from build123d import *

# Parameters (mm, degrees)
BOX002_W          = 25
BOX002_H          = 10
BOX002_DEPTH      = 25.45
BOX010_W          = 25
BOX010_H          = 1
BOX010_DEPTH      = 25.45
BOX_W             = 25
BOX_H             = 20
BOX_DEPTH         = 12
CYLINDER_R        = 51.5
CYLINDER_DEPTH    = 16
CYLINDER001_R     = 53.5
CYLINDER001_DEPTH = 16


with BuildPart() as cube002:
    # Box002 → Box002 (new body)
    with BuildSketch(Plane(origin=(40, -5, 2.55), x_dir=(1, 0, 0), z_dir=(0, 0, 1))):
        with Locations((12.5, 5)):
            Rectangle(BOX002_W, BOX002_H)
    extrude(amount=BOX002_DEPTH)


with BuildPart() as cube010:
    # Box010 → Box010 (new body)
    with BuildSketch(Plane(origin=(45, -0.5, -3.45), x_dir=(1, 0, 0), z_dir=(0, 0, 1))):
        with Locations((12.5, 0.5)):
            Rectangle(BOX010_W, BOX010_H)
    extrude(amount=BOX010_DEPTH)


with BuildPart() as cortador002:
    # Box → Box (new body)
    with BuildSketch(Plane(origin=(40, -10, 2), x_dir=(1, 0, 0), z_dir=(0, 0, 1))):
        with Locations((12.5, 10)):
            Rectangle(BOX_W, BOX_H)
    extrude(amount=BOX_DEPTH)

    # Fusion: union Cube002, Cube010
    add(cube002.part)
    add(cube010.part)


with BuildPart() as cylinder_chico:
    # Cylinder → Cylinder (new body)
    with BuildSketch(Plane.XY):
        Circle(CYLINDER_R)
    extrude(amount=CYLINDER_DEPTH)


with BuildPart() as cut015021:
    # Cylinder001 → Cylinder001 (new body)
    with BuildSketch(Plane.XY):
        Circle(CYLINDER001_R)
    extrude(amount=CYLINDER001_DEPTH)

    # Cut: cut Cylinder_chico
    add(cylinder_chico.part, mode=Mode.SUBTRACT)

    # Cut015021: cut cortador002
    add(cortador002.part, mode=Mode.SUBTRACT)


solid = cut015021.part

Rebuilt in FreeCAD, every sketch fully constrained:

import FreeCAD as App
import Part
import Sketcher
from FreeCAD import Vector


def add_polygon(sketch, points):
    """Adds a closed chain of lines whose ends are joined by coincident constraints."""
    first, n = sketch.GeometryCount, len(points)
    for a, b in zip(points, points[1:] + points[:1]):
        sketch.addGeometry(Part.LineSegment(App.Vector(*a, 0), App.Vector(*b, 0)), False)
    for i in range(n):
        sketch.addConstraint(Sketcher.Constraint("Coincident", first + i, 2, first + (i + 1) % n, 1))

doc = App.newDocument("Part")
body = doc.addObject("PartDesign::Body", "Body")

# Sketch on XY plane
sketch1 = body.newObject("Sketcher::SketchObject", "Sketch")
sketch1.AttachmentSupport = (doc.getObject("XY_Plane"), [""])
sketch1.MapMode = "FlatFace"
sketch1.AttachmentOffset = App.Placement(Vector(0, 0, 2.55), App.Rotation())
add_polygon(sketch1, [(40, 5), (40, -5), (65, -5), (65, 5)])  # lines 0-3
sketch1.addConstraint([
    Sketcher.Constraint("Vertical", 0),
    Sketcher.Constraint("Horizontal", 1),
    Sketcher.Constraint("Vertical", 2),
    Sketcher.Constraint("Horizontal", 3),
    Sketcher.Constraint("DistanceX", 1, 1, 1, 2, 25.0),
    Sketcher.Constraint("DistanceY", 0, 2, 0, 1, 10.0),
    Sketcher.Constraint("DistanceX", -1, 1, 0, 2, 40.0),
    Sketcher.Constraint("DistanceY", 0, 2, -1, 1, 5.0),
])
pad1 = body.newObject("PartDesign::Pad", "Pad")
pad1.Profile = sketch1
pad1.Length = 25.45
body2 = doc.addObject("PartDesign::Body", "Body001")

# Sketch on XY plane
sketch2 = body2.newObject("Sketcher::SketchObject", "Sketch001")
sketch2.AttachmentSupport = (doc.getObject("XY_Plane001"), [""])
sketch2.MapMode = "FlatFace"
sketch2.AttachmentOffset = App.Placement(Vector(0, 0, -3.45), App.Rotation())
add_polygon(sketch2, [(45, 0.5), (45, -0.5), (70, -0.5), (70, 0.5)])  # lines 0-3
sketch2.addConstraint([
    Sketcher.Constraint("Vertical", 0),
    Sketcher.Constraint("Horizontal", 1),
    Sketcher.Constraint("Vertical", 2),
    Sketcher.Constraint("Horizontal", 3),
    Sketcher.Constraint("DistanceX", 1, 1, 1, 2, 25.0),
    Sketcher.Constraint("DistanceY", 0, 2, 0, 1, 1.0),
    Sketcher.Constraint("DistanceX", -1, 1, 0, 2, 45.0),
    Sketcher.Constraint("DistanceY", 0, 2, -1, 1, 0.5),
])
pad2 = body2.newObject("PartDesign::Pad", "Pad001")
pad2.Profile = sketch2
pad2.Length = 25.45
body3 = doc.addObject("PartDesign::Body", "Body002")

# Sketch on XY plane
sketch3 = body3.newObject("Sketcher::SketchObject", "Sketch002")
sketch3.AttachmentSupport = (doc.getObject("XY_Plane002"), [""])
sketch3.MapMode = "FlatFace"
sketch3.AttachmentOffset = App.Placement(Vector(0, 0, 2), App.Rotation())
add_polygon(sketch3, [(40, 10), (40, -10), (65, -10), (65, 10)])  # lines 0-3
sketch3.addConstraint([
    Sketcher.Constraint("Vertical", 0),
    Sketcher.Constraint("Horizontal", 1),
    Sketcher.Constraint("Vertical", 2),
    Sketcher.Constraint("Horizontal", 3),
    Sketcher.Constraint("DistanceX", 1, 1, 1, 2, 25.0),
    Sketcher.Constraint("DistanceY", 0, 2, 0, 1, 20.0),
    Sketcher.Constraint("DistanceX", -1, 1, 0, 2, 40.0),
    Sketcher.Constraint("DistanceY", 0, 2, -1, 1, 10.0),
])
pad3 = body3.newObject("PartDesign::Pad", "Pad002")
pad3.Profile = sketch3
pad3.Length = 12
doc.recompute()

boolean = body3.newObject("PartDesign::Boolean", "Boolean")
boolean.Type = "Fuse"
boolean.addObjects([body])
doc.recompute()

boolean2 = body3.newObject("PartDesign::Boolean", "Boolean001")
boolean2.Type = "Fuse"
boolean2.addObjects([body2])
body4 = doc.addObject("PartDesign::Body", "Body003")

# Sketch on XY plane
sketch4 = body4.newObject("Sketcher::SketchObject", "Sketch003")
sketch4.AttachmentSupport = (doc.getObject("XY_Plane003"), [""])
sketch4.MapMode = "FlatFace"
sketch4.addGeometry(Part.Circle(Vector(0, 0, 0), Vector(0, 0, 1), 52), False)
sketch4.addConstraint([
    Sketcher.Constraint("Coincident", 0, 3, -1, 1),
    Sketcher.Constraint("Diameter", 0, 103.0),
])
pad4 = body4.newObject("PartDesign::Pad", "Pad003")
pad4.Profile = sketch4
pad4.Length = 16
body5 = doc.addObject("PartDesign::Body", "Body004")

# Sketch on XY plane
sketch5 = body5.newObject("Sketcher::SketchObject", "Sketch004")
sketch5.AttachmentSupport = (doc.getObject("XY_Plane004"), [""])
sketch5.MapMode = "FlatFace"
sketch5.addGeometry(Part.Circle(Vector(0, 0, 0), Vector(0, 0, 1), 54), False)
sketch5.addConstraint([
    Sketcher.Constraint("Coincident", 0, 3, -1, 1),
    Sketcher.Constraint("Diameter", 0, 107.0),
])
pad5 = body5.newObject("PartDesign::Pad", "Pad004")
pad5.Profile = sketch5
pad5.Length = 16
doc.recompute()

boolean3 = body5.newObject("PartDesign::Boolean", "Boolean002")
boolean3.Type = "Cut"
boolean3.addObjects([body4])
doc.recompute()

boolean4 = body5.newObject("PartDesign::Boolean", "Boolean003")
boolean4.Type = "Cut"
boolean4.addObjects([body3])

doc.recompute()
